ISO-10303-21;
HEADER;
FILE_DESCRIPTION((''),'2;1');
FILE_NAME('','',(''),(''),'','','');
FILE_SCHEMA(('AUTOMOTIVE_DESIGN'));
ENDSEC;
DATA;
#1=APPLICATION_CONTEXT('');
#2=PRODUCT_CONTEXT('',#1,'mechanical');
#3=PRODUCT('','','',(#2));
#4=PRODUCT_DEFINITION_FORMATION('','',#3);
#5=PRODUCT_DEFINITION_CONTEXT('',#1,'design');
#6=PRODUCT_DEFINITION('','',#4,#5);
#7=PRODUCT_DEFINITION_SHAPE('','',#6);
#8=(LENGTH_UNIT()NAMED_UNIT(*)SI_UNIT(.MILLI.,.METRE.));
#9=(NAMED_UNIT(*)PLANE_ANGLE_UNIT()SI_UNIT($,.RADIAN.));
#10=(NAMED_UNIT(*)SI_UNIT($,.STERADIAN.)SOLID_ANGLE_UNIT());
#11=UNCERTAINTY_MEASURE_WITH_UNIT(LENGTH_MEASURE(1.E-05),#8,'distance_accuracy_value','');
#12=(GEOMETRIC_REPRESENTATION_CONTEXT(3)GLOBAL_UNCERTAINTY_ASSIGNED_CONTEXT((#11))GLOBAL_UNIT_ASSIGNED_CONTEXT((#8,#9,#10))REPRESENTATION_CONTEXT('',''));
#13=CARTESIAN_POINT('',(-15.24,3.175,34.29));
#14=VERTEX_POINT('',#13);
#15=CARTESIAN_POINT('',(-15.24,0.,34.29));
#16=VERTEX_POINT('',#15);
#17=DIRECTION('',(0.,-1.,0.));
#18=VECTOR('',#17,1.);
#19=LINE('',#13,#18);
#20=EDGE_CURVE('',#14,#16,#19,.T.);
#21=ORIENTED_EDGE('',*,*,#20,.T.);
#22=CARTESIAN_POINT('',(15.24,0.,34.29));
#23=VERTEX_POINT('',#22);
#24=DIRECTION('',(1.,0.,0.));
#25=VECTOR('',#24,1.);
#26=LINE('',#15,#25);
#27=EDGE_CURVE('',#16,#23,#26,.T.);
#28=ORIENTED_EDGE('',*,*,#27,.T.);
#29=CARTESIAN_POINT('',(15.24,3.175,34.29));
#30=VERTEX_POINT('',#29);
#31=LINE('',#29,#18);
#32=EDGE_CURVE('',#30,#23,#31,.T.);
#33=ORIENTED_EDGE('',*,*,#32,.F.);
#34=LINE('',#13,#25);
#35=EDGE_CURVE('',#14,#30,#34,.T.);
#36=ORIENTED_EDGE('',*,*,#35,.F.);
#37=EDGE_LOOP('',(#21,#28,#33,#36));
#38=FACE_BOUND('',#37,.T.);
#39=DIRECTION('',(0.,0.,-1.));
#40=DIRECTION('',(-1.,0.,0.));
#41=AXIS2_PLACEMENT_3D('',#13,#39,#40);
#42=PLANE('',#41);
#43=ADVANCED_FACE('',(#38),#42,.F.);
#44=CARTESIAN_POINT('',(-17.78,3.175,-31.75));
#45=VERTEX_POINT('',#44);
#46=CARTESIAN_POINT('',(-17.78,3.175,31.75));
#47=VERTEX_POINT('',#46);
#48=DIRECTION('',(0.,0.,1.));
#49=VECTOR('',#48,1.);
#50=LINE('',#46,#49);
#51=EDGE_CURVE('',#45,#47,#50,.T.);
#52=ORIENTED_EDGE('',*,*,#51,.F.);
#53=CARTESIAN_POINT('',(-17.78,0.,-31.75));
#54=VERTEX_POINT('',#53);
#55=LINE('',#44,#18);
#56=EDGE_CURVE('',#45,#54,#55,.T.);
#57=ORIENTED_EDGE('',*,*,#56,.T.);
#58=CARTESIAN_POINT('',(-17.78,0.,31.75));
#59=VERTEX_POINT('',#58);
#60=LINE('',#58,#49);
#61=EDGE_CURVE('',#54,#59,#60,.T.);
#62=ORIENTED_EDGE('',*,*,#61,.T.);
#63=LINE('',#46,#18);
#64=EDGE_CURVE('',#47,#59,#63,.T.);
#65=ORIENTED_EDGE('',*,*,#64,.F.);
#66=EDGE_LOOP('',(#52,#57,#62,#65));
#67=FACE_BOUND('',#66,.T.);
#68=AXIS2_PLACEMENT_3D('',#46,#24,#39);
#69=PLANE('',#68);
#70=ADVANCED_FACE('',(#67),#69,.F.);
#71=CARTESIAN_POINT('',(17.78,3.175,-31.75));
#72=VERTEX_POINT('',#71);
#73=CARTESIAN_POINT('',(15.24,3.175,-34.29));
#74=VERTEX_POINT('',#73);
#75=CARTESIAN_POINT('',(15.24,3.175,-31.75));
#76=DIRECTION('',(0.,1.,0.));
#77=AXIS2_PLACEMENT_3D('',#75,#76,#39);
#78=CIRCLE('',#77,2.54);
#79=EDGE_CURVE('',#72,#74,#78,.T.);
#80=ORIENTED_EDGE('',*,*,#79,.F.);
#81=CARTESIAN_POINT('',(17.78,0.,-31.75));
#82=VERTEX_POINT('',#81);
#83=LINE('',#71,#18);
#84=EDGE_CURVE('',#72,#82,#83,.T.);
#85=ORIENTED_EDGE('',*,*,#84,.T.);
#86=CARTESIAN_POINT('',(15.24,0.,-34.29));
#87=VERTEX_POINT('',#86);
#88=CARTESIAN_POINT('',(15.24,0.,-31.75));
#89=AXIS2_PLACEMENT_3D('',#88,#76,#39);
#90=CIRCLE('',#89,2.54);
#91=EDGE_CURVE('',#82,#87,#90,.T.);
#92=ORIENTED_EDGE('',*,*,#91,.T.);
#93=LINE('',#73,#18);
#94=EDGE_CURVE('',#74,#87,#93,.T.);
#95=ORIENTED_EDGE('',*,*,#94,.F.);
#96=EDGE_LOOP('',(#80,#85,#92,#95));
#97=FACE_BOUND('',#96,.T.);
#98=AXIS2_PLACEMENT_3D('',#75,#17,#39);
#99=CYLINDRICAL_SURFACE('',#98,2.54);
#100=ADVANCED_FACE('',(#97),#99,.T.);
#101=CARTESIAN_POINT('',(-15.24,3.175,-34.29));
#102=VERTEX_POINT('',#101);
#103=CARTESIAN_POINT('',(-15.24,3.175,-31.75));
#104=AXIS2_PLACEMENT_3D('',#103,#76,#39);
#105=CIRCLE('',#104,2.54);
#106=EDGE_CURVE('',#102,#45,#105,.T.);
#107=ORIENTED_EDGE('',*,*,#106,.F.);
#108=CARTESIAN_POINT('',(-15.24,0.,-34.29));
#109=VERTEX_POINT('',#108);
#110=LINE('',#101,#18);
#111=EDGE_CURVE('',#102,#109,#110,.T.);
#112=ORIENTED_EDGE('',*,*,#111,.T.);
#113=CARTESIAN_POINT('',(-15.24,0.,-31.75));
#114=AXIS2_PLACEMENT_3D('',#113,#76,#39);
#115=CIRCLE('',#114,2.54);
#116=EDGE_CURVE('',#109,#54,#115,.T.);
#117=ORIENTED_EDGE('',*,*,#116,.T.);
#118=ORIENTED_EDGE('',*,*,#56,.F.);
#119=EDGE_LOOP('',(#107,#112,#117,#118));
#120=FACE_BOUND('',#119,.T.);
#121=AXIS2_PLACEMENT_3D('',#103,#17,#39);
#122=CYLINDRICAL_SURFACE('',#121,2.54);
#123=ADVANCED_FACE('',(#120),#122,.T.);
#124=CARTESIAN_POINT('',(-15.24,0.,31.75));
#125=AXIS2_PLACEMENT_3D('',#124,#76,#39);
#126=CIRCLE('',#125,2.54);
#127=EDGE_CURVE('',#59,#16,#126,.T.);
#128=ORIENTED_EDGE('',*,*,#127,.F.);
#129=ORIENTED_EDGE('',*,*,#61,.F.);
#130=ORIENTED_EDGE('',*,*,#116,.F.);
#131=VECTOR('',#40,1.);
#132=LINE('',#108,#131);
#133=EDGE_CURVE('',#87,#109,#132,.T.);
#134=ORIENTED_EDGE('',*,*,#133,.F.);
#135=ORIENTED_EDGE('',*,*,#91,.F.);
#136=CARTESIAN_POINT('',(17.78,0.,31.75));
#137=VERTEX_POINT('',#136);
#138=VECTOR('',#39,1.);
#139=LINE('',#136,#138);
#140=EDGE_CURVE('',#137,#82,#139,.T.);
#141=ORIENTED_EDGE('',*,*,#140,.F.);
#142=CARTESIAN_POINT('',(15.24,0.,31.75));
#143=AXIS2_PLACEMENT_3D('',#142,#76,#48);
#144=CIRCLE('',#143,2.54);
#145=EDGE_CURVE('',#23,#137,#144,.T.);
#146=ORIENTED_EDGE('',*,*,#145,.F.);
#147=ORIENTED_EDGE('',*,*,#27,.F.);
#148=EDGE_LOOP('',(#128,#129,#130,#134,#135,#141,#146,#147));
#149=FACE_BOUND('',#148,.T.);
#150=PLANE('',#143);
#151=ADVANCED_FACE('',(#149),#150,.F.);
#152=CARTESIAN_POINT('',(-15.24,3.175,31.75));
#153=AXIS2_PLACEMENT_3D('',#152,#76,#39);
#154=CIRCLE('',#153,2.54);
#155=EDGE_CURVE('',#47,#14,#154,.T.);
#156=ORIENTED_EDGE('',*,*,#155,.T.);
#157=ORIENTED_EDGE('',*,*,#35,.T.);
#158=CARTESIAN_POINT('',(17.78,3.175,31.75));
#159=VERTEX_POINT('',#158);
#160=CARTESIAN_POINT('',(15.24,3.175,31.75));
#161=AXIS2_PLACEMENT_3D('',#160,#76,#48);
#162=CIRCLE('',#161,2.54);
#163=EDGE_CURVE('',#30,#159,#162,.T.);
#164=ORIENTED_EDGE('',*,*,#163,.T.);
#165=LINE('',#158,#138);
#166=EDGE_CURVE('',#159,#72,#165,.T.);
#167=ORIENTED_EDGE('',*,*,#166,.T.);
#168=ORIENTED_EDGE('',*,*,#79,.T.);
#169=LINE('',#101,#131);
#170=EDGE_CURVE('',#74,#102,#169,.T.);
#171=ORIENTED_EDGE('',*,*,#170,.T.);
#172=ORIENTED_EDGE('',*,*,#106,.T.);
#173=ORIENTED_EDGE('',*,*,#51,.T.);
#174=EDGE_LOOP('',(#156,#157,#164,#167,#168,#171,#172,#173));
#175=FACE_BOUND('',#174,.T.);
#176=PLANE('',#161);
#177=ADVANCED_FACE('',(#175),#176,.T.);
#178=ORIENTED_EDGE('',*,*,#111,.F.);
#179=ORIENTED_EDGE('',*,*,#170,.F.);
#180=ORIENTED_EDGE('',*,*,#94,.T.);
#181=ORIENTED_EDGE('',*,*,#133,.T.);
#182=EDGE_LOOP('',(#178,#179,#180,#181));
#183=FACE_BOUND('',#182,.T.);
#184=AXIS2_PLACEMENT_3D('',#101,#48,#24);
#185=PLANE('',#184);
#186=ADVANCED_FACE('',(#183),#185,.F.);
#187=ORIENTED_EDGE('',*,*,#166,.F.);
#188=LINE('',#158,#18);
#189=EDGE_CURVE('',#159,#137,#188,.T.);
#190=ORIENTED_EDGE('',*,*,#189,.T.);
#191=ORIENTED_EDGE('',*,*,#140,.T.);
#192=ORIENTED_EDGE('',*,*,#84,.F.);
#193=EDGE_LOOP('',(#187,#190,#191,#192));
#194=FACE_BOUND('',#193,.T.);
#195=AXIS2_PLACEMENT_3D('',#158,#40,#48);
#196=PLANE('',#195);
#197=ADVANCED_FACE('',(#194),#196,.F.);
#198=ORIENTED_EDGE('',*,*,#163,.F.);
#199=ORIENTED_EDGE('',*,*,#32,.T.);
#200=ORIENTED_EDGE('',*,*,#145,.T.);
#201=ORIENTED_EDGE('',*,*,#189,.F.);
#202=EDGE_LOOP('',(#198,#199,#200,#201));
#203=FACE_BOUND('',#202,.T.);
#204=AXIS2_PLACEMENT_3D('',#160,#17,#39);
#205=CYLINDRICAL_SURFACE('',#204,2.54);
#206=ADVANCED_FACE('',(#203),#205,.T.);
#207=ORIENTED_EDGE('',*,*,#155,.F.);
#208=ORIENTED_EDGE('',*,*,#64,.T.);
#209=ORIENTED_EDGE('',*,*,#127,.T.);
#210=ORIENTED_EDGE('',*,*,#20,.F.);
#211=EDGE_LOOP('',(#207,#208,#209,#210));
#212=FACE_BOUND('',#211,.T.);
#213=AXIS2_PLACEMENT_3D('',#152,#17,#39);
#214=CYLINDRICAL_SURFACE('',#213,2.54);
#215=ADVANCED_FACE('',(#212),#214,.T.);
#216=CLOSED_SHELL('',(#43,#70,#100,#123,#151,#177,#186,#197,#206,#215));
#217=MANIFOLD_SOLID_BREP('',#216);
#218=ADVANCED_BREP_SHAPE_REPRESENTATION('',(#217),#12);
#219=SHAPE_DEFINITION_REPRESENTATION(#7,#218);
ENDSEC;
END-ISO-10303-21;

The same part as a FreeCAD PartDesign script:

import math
import FreeCAD as App
import Part
import Sketcher
Q = App.Units.Quantity

doc = App.newDocument("Part")
params = doc.addObject("Spreadsheet::Sheet", "Params")
for row, (alias, value) in enumerate([
    ("sketch1_radius", "0.1 in"),
    ("sketch1_width", "1.2 in"),
    ("sketch1_height", "2.5 in"),
    ("pad1_length", "0.125 in"),
], start=1):
    params.set(f"A{row}", alias)
    params.set(f"B{row}", "=" + value)
    params.setAlias(f"B{row}", alias)

body = doc.addObject("PartDesign::Body", "Body")

# Sketch on XZ plane
sketch1 = body.newObject("Sketcher::SketchObject", "Sketch")
sketch1.AttachmentSupport = (doc.getObject("XZ_Plane"), [""])
sketch1.MapMode = "FlatFace"
sketch1.addGeometry([
    Part.LineSegment(App.Vector(-15.24, 34.29, 0), App.Vector(15.24, 34.29, 0)),  # 0
    Part.ArcOfCircle(Part.Circle(App.Vector(15.24, 31.75, 0), App.Vector(0, 0, 1), 2.54), math.radians(0), math.radians(90)),  # 1
    Part.LineSegment(App.Vector(17.78, 31.75, 0), App.Vector(17.78, -31.75, 0)),  # 2
    Part.ArcOfCircle(Part.Circle(App.Vector(15.24, -31.75, 0), App.Vector(0, 0, 1), 2.54), math.radians(-90), math.radians(0)),  # 3
    Part.LineSegment(App.Vector(15.24, -34.29, 0), App.Vector(-15.24, -34.29, 0)),  # 4
    Part.ArcOfCircle(Part.Circle(App.Vector(-15.24, -31.75, 0), App.Vector(0, 0, 1), 2.54), math.radians(-180), math.radians(-90)),  # 5
    Part.LineSegment(App.Vector(-17.78, -31.75, 0), App.Vector(-17.78, 31.75, 0)),  # 6
    Part.ArcOfCircle(Part.Circle(App.Vector(-15.24, 31.75, 0), App.Vector(0, 0, 1), 2.54), math.radians(90), math.radians(180)),  # 7
], False)
sketch1.addConstraint([
    Sketcher.Constraint("Tangent", 0, 2, 1, 2),
    Sketcher.Constraint("Tangent", 1, 1, 2, 1),
    Sketcher.Constraint("Tangent", 2, 2, 3, 2),
    Sketcher.Constraint("Tangent", 3, 1, 4, 1),
    Sketcher.Constraint("Tangent", 4, 2, 5, 2),
    Sketcher.Constraint("Tangent", 5, 1, 6, 1),
    Sketcher.Constraint("Tangent", 6, 2, 7, 2),
    Sketcher.Constraint("Tangent", 7, 1, 0, 1),
    Sketcher.Constraint("Horizontal", 0),
    Sketcher.Constraint("Vertical", 2),
    Sketcher.Constraint("Horizontal", 4),
    Sketcher.Constraint("Vertical", 6),
    Sketcher.Constraint("Equal", 1, 3),
    Sketcher.Constraint("Equal", 3, 5),
    Sketcher.Constraint("Equal", 5, 7),
    Sketcher.Constraint("Symmetric", 1, 3, 5, 3, -1, 1),
    Sketcher.Constraint("Radius", 1, Q("0.1 in")),
    Sketcher.Constraint("DistanceX", 0, 1, 0, 2, Q("1.2 in")),
    Sketcher.Constraint("DistanceY", 2, 2, 2, 1, Q("2.5 in")),
])
sketch1.setExpression("Constraints[16]", "Params.sketch1_radius")
sketch1.setExpression("Constraints[17]", "Params.sketch1_width")
sketch1.setExpression("Constraints[18]", "Params.sketch1_height")
pad1 = body.newObject("PartDesign::Pad", "Pad")
pad1.Profile = sketch1
pad1.setExpression("Length", "Params.pad1_length")
pad1.Reversed = True

doc.recompute()
